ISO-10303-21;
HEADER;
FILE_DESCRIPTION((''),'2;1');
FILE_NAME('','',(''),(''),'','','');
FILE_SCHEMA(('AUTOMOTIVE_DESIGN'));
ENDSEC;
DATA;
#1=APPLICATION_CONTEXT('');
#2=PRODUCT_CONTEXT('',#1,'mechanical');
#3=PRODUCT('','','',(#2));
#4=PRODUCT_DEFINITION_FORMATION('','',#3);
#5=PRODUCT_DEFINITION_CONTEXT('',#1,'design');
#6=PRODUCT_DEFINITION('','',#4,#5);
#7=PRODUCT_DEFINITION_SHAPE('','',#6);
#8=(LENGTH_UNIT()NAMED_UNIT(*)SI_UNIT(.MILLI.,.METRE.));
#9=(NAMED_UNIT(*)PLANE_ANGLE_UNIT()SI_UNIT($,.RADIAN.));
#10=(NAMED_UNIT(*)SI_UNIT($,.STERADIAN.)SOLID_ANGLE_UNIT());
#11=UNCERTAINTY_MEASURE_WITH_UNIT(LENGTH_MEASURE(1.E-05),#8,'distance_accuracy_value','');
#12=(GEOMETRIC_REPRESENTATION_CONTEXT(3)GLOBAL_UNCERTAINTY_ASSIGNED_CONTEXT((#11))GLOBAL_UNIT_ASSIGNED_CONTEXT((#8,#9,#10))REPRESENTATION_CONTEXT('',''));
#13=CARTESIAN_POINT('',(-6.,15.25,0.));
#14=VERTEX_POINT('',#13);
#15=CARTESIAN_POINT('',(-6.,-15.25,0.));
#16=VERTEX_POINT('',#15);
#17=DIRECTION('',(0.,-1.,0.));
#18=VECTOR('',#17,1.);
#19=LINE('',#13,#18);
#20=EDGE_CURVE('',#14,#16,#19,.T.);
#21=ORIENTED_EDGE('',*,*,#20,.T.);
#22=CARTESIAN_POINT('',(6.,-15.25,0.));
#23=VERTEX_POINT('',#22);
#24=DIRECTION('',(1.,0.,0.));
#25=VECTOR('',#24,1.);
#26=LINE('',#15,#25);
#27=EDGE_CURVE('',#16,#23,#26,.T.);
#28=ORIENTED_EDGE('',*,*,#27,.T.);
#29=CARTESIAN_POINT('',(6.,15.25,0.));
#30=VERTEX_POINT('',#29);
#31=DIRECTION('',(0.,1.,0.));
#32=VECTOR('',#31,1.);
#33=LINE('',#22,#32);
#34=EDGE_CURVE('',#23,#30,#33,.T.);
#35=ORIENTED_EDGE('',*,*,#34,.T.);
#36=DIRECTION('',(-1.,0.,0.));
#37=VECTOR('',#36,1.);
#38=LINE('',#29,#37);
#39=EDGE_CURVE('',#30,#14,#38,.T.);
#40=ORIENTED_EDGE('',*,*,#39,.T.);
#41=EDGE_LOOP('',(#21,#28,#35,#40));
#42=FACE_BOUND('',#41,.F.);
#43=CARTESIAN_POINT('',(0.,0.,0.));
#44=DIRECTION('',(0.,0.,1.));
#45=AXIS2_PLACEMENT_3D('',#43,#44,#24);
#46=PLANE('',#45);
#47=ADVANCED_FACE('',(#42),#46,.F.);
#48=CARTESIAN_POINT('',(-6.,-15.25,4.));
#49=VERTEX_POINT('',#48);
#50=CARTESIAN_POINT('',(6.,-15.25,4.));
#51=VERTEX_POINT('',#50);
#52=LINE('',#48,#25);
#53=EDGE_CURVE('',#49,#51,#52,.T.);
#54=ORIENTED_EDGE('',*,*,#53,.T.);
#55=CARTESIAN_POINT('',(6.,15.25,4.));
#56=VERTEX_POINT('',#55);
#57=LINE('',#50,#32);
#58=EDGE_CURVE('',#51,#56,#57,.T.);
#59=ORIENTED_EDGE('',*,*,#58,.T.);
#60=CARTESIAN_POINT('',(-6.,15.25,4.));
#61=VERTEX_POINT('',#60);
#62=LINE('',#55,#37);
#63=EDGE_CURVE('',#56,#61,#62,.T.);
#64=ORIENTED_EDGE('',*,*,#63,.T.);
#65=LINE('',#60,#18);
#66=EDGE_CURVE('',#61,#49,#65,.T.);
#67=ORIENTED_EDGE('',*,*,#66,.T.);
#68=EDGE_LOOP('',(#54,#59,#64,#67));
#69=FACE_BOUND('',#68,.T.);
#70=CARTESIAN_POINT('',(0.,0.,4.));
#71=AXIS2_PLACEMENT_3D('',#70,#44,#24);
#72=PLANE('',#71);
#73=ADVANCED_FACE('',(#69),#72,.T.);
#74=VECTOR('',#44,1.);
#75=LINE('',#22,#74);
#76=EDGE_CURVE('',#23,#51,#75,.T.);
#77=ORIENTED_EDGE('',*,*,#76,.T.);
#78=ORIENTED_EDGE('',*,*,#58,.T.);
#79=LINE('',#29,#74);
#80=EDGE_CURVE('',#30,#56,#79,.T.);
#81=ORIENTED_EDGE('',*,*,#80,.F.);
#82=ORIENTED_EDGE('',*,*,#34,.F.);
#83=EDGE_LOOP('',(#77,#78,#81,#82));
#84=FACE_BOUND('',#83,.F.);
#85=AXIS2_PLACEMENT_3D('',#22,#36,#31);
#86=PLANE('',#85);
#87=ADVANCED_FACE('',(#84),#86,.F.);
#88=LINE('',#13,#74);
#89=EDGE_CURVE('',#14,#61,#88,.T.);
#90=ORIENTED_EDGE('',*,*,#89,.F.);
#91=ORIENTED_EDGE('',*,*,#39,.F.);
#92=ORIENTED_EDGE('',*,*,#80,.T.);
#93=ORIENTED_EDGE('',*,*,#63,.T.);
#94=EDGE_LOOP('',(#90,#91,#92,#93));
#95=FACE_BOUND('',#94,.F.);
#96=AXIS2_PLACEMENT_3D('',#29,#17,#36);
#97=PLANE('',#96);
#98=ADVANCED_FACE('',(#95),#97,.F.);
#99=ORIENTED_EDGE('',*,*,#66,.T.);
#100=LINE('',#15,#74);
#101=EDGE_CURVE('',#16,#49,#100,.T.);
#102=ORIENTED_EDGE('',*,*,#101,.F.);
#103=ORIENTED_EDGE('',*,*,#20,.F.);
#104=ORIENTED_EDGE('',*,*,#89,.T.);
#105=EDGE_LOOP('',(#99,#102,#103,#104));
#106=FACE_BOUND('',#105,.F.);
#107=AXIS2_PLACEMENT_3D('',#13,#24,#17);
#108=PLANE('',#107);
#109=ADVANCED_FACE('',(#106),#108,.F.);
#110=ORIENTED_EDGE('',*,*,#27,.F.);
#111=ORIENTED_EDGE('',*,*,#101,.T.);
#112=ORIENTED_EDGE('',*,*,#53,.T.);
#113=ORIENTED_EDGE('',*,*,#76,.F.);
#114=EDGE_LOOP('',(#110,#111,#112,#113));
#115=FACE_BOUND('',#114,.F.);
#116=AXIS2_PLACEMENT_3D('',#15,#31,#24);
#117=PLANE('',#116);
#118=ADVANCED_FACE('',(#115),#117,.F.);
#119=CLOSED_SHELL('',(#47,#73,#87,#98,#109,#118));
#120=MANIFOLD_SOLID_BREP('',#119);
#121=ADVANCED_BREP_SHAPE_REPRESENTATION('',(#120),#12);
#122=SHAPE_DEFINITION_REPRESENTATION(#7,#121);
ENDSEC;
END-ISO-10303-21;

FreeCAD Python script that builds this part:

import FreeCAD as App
import Part
import Sketcher
Q = App.Units.Quantity


def add_polygon(sketch, points):
    """Adds a closed chain of lines whose ends are joined by coincident constraints."""
    first, n = sketch.GeometryCount, len(points)
    for a, b in zip(points, points[1:] + points[:1]):
        sketch.addGeometry(Part.LineSegment(App.Vector(*a, 0), App.Vector(*b, 0)), False)
    for i in range(n):
        sketch.addConstraint(Sketcher.Constraint("Coincident", first + i, 2, first + (i + 1) % n, 1))

doc = App.newDocument("Part")
body = doc.addObject("PartDesign::Body", "Body")

sketch1 = doc.addObject("Sketcher::SketchObject", "Sketch")
body.addObject(sketch1)
sketch1.AttachmentSupport = (doc.XY_Plane, [""])
sketch1.MapMode = "FlatFace"
add_polygon(sketch1, [(-6, 15), (-6, -15), (6, -15), (6, 15)])
sketch1.addConstraint([
    Sketcher.Constraint("Vertical", 0),
    Sketcher.Constraint("Horizontal", 1),
    Sketcher.Constraint("Vertical", 2),
    Sketcher.Constraint("Horizontal", 3),
    Sketcher.Constraint("Symmetric", 0, 2, 2, 2, -1, 1),
    Sketcher.Constraint("DistanceX", 0, 2, -1, 1, Q("6 mm")),
    Sketcher.Constraint("DistanceY", 0, 2, 0, 1, Q("30.5 mm")),
])
pad1 = doc.addObject("PartDesign::Pad", "Pad")
body.addObject(pad1)
pad1.Profile = sketch1
pad1.Length = 4

doc.recompute()
